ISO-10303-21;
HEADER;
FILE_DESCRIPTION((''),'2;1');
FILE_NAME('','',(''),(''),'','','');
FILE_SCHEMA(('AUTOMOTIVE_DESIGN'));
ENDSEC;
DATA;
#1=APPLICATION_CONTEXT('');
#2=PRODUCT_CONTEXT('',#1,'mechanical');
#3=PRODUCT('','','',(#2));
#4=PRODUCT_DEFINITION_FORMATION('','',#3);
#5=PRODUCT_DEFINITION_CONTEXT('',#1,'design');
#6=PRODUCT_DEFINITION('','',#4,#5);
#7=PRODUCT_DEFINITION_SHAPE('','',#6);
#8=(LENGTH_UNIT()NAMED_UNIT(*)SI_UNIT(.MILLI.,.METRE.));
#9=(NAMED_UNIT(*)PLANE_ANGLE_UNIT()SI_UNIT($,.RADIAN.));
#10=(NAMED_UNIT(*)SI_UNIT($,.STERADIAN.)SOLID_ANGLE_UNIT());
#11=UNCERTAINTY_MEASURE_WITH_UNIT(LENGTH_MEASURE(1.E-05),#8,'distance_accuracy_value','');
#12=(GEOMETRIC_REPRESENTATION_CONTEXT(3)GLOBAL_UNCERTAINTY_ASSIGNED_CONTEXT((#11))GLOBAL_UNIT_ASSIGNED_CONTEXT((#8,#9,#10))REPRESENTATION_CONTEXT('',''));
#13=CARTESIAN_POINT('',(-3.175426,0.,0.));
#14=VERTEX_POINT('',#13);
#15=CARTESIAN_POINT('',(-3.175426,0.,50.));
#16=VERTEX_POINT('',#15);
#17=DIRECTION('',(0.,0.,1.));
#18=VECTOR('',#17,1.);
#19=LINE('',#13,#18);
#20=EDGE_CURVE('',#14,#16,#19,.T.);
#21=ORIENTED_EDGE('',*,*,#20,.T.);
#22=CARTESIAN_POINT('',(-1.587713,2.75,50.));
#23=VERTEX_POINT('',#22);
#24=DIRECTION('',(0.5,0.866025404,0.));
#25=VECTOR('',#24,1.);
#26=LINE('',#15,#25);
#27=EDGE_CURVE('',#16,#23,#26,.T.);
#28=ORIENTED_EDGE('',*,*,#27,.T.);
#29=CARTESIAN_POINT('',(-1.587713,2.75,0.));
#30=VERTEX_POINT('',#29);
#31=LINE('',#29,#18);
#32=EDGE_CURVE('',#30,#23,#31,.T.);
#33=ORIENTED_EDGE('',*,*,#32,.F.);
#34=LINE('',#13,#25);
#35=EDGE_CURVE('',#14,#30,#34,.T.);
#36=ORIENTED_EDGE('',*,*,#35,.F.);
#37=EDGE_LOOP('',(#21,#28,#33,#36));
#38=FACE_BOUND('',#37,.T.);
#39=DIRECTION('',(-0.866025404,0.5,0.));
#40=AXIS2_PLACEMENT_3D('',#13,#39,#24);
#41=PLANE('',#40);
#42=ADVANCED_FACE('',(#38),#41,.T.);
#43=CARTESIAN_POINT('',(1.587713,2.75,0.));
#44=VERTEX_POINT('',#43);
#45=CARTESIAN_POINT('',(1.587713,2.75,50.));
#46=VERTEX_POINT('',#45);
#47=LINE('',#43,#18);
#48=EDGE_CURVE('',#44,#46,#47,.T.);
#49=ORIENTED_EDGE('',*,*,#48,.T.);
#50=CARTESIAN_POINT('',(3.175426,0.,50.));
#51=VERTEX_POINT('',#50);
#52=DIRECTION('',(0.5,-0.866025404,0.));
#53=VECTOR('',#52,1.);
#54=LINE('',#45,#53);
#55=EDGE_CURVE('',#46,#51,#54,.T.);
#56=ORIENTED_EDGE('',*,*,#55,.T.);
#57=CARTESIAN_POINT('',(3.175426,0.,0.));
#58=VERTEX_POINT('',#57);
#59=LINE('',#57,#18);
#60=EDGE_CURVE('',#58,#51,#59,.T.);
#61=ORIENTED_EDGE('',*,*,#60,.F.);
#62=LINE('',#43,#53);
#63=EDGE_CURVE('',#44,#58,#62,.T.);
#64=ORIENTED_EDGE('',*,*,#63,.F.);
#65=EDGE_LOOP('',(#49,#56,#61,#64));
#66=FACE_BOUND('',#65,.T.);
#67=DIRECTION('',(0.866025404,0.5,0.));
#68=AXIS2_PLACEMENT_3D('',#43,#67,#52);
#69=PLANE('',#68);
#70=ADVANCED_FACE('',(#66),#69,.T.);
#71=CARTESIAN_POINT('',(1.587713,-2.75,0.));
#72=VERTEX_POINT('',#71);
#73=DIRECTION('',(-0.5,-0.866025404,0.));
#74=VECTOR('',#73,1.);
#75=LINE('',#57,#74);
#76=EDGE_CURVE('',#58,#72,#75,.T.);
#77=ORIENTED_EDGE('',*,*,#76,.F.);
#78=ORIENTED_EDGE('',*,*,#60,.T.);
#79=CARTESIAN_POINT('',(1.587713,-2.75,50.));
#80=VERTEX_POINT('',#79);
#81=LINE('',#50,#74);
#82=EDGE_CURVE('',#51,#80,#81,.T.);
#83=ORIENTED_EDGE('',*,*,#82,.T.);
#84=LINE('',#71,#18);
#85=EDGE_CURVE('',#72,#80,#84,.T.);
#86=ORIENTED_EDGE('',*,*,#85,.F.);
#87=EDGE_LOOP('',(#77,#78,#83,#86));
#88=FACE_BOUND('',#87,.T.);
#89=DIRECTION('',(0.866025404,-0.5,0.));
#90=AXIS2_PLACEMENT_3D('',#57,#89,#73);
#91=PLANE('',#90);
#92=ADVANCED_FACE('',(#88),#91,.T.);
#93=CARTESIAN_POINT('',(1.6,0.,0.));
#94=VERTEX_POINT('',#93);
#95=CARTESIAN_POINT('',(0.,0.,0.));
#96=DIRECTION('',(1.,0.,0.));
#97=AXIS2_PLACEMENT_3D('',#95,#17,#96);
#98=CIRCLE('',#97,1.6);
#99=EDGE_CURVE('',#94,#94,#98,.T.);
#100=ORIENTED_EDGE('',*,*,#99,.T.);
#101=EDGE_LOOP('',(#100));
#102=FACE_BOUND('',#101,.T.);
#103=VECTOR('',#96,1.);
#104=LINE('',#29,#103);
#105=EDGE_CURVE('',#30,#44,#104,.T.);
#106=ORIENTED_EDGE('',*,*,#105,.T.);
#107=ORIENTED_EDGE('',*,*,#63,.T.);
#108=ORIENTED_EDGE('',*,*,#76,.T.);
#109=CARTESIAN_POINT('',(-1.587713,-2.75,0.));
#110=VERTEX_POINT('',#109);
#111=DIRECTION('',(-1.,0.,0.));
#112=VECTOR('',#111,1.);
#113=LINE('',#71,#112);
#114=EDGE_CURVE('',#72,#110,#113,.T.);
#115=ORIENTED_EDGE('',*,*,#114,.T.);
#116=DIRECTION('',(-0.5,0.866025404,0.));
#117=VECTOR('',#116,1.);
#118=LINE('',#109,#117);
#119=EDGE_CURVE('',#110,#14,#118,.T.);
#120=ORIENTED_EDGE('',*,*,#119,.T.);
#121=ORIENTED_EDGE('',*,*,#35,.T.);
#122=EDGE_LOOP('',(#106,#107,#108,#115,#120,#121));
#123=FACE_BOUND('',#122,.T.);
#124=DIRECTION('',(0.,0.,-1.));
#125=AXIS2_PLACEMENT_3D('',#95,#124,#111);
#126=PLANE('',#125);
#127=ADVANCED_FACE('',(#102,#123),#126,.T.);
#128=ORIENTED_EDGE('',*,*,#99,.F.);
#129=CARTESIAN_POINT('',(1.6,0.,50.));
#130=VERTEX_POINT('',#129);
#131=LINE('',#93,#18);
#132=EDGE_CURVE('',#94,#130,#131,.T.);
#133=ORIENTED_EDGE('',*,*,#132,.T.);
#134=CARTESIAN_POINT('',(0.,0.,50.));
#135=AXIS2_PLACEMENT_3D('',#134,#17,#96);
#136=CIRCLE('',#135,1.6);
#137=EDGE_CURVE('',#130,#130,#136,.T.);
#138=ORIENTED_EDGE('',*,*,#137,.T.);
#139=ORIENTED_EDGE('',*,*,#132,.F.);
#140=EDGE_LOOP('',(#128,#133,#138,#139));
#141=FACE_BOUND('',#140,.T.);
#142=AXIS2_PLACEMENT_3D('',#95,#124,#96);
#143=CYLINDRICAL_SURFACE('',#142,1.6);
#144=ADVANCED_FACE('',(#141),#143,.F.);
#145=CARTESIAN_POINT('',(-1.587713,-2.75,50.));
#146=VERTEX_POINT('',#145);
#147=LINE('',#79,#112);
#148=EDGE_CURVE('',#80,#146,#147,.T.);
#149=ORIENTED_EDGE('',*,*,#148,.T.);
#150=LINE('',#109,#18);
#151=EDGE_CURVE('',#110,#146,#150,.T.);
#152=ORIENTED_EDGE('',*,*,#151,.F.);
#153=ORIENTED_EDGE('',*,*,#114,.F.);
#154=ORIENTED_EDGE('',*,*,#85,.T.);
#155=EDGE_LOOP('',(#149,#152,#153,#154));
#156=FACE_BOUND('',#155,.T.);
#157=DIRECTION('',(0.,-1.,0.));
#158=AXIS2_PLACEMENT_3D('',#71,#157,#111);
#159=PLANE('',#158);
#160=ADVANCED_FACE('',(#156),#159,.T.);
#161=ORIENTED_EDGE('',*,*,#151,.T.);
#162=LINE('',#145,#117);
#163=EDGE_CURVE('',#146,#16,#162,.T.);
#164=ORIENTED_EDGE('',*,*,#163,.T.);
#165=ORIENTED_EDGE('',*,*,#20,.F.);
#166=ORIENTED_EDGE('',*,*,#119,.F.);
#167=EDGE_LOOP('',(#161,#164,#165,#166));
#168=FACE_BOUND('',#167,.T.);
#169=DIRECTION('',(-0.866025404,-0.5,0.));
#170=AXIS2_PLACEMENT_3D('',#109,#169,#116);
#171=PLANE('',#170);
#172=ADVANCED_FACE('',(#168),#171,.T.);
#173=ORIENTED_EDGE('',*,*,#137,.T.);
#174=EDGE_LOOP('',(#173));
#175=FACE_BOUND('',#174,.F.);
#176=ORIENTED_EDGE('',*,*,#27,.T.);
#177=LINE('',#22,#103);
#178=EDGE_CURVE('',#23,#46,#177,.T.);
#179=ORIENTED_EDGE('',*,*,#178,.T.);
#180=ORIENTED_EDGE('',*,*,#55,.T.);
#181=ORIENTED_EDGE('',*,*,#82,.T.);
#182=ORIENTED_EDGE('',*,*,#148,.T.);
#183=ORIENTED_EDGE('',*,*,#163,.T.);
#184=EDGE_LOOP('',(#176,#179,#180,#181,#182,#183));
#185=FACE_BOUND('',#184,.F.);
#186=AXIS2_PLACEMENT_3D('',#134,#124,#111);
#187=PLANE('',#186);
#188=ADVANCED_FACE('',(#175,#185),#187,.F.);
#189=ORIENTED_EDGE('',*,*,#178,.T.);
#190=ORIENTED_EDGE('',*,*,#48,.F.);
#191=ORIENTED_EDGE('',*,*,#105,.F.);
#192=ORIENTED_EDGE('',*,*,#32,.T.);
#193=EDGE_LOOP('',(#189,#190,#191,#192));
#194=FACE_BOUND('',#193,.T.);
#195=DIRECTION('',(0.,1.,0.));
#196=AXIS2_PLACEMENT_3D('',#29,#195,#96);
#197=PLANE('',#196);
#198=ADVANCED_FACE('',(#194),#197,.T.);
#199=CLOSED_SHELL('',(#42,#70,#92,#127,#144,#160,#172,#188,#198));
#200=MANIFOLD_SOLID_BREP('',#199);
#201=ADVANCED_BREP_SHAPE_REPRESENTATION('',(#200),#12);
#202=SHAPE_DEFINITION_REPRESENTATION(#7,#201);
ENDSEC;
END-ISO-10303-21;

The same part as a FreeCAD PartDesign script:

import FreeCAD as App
import Part
import Sketcher
Q = App.Units.Quantity


def add_polygon(sketch, points):
    """Adds a closed chain of lines whose ends are joined by coincident constraints."""
    first, n = sketch.GeometryCount, len(points)
    for a, b in zip(points, points[1:] + points[:1]):
        sketch.addGeometry(Part.LineSegment(App.Vector(*a, 0), App.Vector(*b, 0)), False)
    for i in range(n):
        sketch.addConstraint(Sketcher.Constraint("Coincident", first + i, 2, first + (i + 1) % n, 1))

doc = App.newDocument("Part")
params = doc.addObject("Spreadsheet::Sheet", "Params")
for row, (alias, value) in enumerate([
    ("sketch1_diameter", "3.2 mm"),
    ("pad1_length", "50 mm"),
], start=1):
    params.set(f"A{row}", alias)
    params.set(f"B{row}", "=" + value)
    params.setAlias(f"B{row}", alias)

body = doc.addObject("PartDesign::Body", "Body")

# Sketch on XY plane
sketch1 = doc.addObject("Sketcher::SketchObject", "Sketch")
body.addObject(sketch1)
sketch1.AttachmentSupport = (doc.XY_Plane, [""])
sketch1.MapMode = "FlatFace"
add_polygon(sketch1, [(1.6, 2.8), (-1.6, 2.8), (-3.2, 0), (-1.6, -2.8), (1.6, -2.8), (3.2, 0)])  # lines 0-5
sketch1.addGeometry(Part.Circle(App.Vector(0, 0, 0), App.Vector(0, 0, 1), 1.6), False)  # 6
sketch1.addConstraint([
    Sketcher.Constraint("Horizontal", 0),
    Sketcher.Constraint("Horizontal", 3),
    Sketcher.Constraint("Coincident", 6, 3, -1, 1),
    Sketcher.Constraint("Symmetric", 0, 2, 3, 2, -1, 1),
    Sketcher.Constraint("Symmetric", 1, 2, 4, 2, -1, 1),
    Sketcher.Constraint("PointOnObject", 1, 2, -1),
    Sketcher.Constraint("Parallel", 2, 5),
    Sketcher.Constraint("Vertical", 0, 2, 2, 2),
    Sketcher.Constraint("Diameter", 6, 3.2),
    Sketcher.Constraint("Angle", 1, Q("-120 deg")),
    Sketcher.Constraint("DistanceY", 2, 2, 0, 2, 5.5),
    Sketcher.Constraint("DistanceX", 0, 2, 0, 1, 3.175426),
])
sketch1.setExpression("Constraints[14]", "Params.sketch1_diameter")
pad1 = doc.addObject("PartDesign::Pad", "Pad")
body.addObject(pad1)
pad1.Profile = sketch1
pad1.setExpression("Length", "Params.pad1_length")

doc.recompute()
